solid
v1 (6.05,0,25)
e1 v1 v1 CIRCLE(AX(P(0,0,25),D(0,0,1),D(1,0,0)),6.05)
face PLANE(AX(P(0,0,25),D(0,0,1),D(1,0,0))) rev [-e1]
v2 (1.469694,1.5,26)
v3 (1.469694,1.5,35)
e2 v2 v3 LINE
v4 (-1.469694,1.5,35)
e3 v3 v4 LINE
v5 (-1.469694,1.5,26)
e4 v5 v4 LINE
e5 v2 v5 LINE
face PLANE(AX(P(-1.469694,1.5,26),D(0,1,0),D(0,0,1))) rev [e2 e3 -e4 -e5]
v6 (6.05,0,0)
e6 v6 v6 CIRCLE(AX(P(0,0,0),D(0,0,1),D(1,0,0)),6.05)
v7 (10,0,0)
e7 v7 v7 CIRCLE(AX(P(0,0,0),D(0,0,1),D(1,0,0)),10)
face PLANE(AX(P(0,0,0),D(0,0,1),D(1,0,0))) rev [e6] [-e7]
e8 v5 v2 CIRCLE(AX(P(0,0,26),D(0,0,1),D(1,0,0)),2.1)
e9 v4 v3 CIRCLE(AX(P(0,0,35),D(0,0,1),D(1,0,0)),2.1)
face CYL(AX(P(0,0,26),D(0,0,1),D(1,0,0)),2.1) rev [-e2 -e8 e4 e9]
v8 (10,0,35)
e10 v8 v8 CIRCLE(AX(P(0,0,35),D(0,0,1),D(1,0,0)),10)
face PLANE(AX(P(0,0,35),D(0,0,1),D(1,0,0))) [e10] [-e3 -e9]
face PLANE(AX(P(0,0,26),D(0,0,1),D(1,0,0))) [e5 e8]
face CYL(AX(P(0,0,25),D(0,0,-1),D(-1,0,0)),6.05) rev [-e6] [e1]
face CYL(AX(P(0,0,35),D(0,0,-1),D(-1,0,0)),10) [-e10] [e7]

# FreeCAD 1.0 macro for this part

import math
import FreeCAD as App
import Part
import Sketcher

V = App.Vector
Q = App.Units.Quantity

doc = App.newDocument("Part")
body = doc.addObject("PartDesign::Body", "Body")

# Sketch on XY plane
sketch1 = body.newObject("Sketcher::SketchObject", "Sketch")
sketch1.AttachmentSupport = (doc.getObject("XY_Plane"), [""])
sketch1.MapMode = "FlatFace"
sketch1.addGeometry(Part.Circle(V(0, 0, 0), V(0, 0, 1), 10), False)
sketch1.addConstraint(Sketcher.Constraint("Coincident", 0, 3, -1, 1))
sketch1.addConstraint(Sketcher.Constraint("Diameter", 0, Q("20 mm")))
pad1 = body.newObject("PartDesign::Pad", "Pad")
pad1.Profile = sketch1
pad1.Length = 35

# Sketch on XY plane
sketch2 = body.newObject("Sketcher::SketchObject", "Sketch001")
sketch2.AttachmentSupport = (doc.getObject("XY_Plane"), [""])
sketch2.MapMode = "FlatFace"
sketch2.addGeometry(Part.Circle(V(0, 0, 0), V(0, 0, 1), 6.05), False)
sketch2.addConstraint(Sketcher.Constraint("Coincident", 0, 3, -1, 1))
sketch2.addConstraint(Sketcher.Constraint("Diameter", 0, Q("12.1 mm")))
pocket1 = body.newObject("PartDesign::Pocket", "Pocket")
pocket1.Profile = sketch2
pocket1.Length = 25
pocket1.Reversed = True

# Sketch on XY plane
sketch3 = body.newObject("Sketcher::SketchObject", "Sketch002")
sketch3.AttachmentSupport = (doc.getObject("XY_Plane"), [""])
sketch3.MapMode = "FlatFace"
sketch3.AttachmentOffset = App.Placement(V(0, 0, 35), App.Rotation())
sketch3.addGeometry(Part.LineSegment(V(1.469694, 1.5, 0), V(-1.469694, 1.5, 0)), False)
sketch3.addGeometry(Part.ArcOfCircle(Part.Circle(V(0, 0, 0), V(0, 0, 1), 2.1), math.radians(134.415309), math.radians(405.584691)), False)
sketch3.addConstraint(Sketcher.Constraint("Coincident", 0, 1, 1, 2))
sketch3.addConstraint(Sketcher.Constraint("Coincident", 1, 1, 0, 2))
sketch3.addConstraint(Sketcher.Constraint("Horizontal", 0))
sketch3.addConstraint(Sketcher.Constraint("Coincident", 1, 3, -1, 1))
sketch3.addConstraint(Sketcher.Constraint("Radius", 1, Q("2.1 mm")))
sketch3.addConstraint(Sketcher.Constraint("DistanceY", -1, 1, 0, 1, Q("1.5 mm")))
pocket2 = body.newObject("PartDesign::Pocket", "Pocket001")
pocket2.Profile = sketch3
pocket2.Length = 9

doc.recompute()
